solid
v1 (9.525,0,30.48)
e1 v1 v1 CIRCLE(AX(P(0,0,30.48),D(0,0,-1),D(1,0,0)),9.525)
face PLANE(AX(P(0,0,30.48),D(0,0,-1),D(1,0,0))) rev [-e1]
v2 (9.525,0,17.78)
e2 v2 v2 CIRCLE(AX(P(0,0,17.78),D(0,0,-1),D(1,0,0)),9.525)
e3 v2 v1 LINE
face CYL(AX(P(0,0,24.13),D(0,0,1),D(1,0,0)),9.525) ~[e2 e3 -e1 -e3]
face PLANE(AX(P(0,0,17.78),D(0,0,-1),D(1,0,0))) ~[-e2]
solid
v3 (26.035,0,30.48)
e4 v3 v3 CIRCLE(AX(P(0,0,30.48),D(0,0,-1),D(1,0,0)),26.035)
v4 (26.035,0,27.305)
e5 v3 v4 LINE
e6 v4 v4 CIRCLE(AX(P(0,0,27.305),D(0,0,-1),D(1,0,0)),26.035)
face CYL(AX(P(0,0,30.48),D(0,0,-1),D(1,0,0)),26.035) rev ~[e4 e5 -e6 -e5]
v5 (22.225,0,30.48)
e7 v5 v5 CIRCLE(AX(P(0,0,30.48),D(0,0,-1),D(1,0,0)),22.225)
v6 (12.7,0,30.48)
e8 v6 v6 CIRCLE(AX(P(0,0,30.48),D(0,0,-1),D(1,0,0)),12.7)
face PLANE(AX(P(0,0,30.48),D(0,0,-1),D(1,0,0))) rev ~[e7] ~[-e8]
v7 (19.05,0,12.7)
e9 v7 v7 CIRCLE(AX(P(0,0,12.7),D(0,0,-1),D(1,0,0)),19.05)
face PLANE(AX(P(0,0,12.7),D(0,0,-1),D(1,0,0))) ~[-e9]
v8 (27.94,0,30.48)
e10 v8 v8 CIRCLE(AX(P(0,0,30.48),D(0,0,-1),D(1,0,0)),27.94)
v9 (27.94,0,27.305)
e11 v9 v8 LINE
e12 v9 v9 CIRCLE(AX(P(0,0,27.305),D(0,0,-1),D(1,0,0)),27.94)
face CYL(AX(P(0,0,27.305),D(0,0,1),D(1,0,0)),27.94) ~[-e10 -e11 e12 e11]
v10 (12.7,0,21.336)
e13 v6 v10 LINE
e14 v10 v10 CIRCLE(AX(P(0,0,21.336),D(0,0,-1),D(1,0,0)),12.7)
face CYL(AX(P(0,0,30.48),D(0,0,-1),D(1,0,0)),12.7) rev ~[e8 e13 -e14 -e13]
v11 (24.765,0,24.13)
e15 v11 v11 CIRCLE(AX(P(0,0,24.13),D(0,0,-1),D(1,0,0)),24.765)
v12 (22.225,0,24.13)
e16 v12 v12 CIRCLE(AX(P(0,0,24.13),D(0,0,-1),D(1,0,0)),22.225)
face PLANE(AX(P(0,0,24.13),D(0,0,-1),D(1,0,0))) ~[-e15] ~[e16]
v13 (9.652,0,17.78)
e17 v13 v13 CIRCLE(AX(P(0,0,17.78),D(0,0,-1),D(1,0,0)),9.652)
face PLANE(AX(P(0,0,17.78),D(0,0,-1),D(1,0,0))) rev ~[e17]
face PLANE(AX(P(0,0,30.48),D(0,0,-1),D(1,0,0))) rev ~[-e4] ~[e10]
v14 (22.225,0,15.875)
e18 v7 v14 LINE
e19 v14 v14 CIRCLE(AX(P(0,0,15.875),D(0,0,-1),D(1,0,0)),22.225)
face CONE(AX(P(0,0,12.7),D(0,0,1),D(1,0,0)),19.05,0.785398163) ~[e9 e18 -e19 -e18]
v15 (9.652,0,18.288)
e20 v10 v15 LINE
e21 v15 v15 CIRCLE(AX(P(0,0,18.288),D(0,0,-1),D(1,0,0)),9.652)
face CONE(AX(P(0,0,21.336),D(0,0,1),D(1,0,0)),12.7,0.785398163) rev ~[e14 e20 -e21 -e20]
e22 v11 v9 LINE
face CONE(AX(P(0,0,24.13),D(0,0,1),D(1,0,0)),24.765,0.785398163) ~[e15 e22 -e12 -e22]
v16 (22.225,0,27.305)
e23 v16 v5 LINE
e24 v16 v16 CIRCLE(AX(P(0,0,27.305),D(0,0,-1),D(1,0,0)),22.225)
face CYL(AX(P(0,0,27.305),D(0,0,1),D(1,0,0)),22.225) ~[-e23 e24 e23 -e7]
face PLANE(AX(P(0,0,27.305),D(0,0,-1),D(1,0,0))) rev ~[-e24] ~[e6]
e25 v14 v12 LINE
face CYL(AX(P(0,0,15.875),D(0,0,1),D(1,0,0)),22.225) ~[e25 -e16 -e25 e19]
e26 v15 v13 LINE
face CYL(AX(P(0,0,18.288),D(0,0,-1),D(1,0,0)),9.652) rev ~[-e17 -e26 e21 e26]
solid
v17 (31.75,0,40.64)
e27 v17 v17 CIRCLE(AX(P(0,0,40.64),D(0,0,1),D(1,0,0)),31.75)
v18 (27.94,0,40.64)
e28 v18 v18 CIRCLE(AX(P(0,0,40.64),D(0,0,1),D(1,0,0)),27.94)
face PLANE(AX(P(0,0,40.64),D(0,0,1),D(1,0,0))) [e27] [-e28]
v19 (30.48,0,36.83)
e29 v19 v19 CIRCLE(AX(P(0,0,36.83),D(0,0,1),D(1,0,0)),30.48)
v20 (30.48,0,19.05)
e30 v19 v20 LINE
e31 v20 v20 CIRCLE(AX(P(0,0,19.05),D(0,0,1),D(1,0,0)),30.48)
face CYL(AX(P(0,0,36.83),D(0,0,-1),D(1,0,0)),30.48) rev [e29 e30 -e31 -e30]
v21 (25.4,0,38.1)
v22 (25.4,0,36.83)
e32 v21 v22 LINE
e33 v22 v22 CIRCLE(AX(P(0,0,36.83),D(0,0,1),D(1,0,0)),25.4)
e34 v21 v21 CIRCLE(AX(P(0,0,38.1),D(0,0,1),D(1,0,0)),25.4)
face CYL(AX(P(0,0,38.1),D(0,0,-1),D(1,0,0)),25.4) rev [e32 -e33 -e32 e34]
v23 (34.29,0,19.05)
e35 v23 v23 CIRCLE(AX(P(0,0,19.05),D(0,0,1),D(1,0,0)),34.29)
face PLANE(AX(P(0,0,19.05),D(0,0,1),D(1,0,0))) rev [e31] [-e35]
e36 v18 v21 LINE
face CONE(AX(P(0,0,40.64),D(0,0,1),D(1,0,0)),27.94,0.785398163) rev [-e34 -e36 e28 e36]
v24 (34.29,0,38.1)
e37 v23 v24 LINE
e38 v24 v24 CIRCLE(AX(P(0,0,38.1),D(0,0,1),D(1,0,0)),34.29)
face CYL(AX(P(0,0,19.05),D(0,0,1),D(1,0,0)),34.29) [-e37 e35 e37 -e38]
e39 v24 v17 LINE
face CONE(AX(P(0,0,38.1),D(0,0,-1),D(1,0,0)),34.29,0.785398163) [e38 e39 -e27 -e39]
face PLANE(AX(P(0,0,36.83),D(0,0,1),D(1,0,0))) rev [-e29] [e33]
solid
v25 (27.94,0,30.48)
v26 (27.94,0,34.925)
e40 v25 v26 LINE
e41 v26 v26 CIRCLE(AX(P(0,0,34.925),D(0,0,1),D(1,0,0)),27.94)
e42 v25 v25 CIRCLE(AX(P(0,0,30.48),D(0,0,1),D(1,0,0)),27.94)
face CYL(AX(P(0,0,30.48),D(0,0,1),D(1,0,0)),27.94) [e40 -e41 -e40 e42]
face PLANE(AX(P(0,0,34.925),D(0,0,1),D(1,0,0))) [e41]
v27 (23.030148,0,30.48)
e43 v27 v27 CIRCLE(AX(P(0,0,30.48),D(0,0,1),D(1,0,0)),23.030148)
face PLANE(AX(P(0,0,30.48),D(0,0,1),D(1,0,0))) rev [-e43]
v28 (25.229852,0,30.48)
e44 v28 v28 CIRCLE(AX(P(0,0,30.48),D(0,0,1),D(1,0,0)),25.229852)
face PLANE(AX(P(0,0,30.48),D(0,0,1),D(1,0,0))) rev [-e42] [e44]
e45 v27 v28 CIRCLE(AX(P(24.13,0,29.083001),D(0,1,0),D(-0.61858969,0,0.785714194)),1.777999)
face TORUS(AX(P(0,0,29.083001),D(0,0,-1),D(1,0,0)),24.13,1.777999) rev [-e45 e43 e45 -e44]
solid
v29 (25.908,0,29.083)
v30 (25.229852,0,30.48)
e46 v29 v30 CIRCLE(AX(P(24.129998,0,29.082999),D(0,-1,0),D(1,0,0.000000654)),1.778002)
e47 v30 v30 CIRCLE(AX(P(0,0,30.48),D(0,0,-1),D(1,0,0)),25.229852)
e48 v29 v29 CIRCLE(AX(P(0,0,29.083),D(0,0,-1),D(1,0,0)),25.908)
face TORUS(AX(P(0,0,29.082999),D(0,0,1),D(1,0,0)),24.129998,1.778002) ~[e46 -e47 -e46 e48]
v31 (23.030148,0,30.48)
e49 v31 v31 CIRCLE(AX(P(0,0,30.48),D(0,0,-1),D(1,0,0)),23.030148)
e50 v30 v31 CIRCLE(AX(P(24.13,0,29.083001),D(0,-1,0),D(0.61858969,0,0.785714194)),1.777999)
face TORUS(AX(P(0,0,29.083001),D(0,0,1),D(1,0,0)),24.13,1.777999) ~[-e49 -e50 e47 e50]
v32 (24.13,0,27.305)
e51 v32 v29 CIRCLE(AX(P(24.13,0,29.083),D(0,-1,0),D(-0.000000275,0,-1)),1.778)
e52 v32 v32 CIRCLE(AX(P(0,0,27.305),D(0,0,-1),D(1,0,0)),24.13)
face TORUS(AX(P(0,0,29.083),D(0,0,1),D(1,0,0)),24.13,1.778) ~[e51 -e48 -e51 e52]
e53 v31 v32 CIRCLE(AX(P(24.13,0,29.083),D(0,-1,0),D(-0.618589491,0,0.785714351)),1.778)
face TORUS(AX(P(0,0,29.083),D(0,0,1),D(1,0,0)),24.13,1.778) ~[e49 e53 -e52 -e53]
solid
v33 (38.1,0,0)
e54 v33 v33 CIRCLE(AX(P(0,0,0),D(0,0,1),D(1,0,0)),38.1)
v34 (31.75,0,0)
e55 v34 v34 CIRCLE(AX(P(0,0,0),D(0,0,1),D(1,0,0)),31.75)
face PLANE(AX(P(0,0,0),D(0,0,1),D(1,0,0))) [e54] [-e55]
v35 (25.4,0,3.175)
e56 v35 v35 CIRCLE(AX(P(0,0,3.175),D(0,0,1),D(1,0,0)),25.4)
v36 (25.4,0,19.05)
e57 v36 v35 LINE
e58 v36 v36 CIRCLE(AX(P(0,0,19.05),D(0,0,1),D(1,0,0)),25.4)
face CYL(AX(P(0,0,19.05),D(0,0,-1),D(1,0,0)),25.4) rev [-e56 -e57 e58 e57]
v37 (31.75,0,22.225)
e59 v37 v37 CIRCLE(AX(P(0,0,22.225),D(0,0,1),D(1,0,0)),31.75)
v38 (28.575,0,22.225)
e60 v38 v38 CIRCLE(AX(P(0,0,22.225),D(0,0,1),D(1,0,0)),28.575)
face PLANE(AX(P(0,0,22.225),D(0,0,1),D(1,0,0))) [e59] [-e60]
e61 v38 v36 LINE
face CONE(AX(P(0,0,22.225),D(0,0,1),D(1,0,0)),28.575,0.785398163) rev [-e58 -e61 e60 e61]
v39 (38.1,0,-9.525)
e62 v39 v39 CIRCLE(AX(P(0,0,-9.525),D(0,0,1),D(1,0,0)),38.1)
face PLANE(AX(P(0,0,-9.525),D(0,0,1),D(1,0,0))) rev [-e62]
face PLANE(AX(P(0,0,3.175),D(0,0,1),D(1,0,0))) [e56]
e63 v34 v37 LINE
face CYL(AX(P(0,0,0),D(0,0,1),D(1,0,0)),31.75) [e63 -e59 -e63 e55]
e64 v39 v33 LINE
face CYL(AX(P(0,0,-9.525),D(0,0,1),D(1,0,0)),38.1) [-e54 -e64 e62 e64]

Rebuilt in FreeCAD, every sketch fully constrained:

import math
import FreeCAD as App
import Part
import Sketcher
from FreeCAD import Vector
Q = App.Units.Quantity


def add_polygon(sketch, points):
    """Adds a closed chain of lines whose ends are joined by coincident constraints."""
    first, n = sketch.GeometryCount, len(points)
    for a, b in zip(points, points[1:] + points[:1]):
        sketch.addGeometry(Part.LineSegment(App.Vector(*a, 0), App.Vector(*b, 0)), False)
    for i in range(n):
        sketch.addConstraint(Sketcher.Constraint("Coincident", first + i, 2, first + (i + 1) % n, 1))

doc = App.newDocument("Part")
body = doc.addObject("PartDesign::Body", "Body")

sketch1 = doc.addObject("Sketcher::SketchObject", "Sketch")
body.addObject(sketch1)
sketch1.AttachmentSupport = (doc.XZ_Plane, [""])
sketch1.MapMode = "FlatFace"
add_polygon(sketch1, [(0, 30), (0, 18), (10, 18), (10, 30)])
sketch1.addConstraint(Sketcher.Constraint("Vertical", 0))
sketch1.addConstraint(Sketcher.Constraint("Horizontal", 1))
sketch1.addConstraint(Sketcher.Constraint("Vertical", 2))
sketch1.addConstraint(Sketcher.Constraint("Horizontal", 3))
sketch1.addConstraint(Sketcher.Constraint("PointOnObject", 0, 2, -2))
sketch1.addConstraint(Sketcher.Constraint("DistanceY", 0, 2, 0, 1, Q("0.5 in")))
sketch1.addConstraint(Sketcher.Constraint("DistanceY", -1, 1, 0, 2, Q("0.7 in")))
sketch1.addConstraint(Sketcher.Constraint("DistanceX", 1, 1, 1, 2, Q("0.375 in")))
revolution = doc.addObject("PartDesign::Revolution", "Revolution")
body.addObject(revolution)
revolution.Profile = sketch1
revolution.ReferenceAxis = (sketch1, ["V_Axis"])
revolution.Angle = 360
body2 = doc.addObject("PartDesign::Body", "Body001")

sketch2 = doc.addObject("Sketcher::SketchObject", "Sketch001")
body2.addObject(sketch2)
sketch2.AttachmentSupport = (doc.getObject("XZ_Plane001"), [""])
sketch2.MapMode = "FlatFace"
add_polygon(sketch2, [(0, 17.8), (0, 12.7), (19.1, 12.7), (22.2, 15.9), (22.2, 24.1), (24.8, 24.1), (27.9, 27.3), (27.9, 30.5), (26, 30.5), (26, 27.3), (22.2, 27.3), (22.2, 30.5), (12.7, 30.5), (12.7, 21.3), (9.7, 18.3), (9.7, 17.8)])
sketch2.addConstraint(Sketcher.Constraint("Vertical", 0))
sketch2.addConstraint(Sketcher.Constraint("Horizontal", 1))
sketch2.addConstraint(Sketcher.Constraint("Vertical", 3))
sketch2.addConstraint(Sketcher.Constraint("Horizontal", 4))
sketch2.addConstraint(Sketcher.Constraint("Vertical", 6))
sketch2.addConstraint(Sketcher.Constraint("Horizontal", 7))
sketch2.addConstraint(Sketcher.Constraint("Vertical", 8))
sketch2.addConstraint(Sketcher.Constraint("Horizontal", 9))
sketch2.addConstraint(Sketcher.Constraint("Vertical", 10))
sketch2.addConstraint(Sketcher.Constraint("Horizontal", 11))
sketch2.addConstraint(Sketcher.Constraint("Vertical", 12))
sketch2.addConstraint(Sketcher.Constraint("Vertical", 14))
sketch2.addConstraint(Sketcher.Constraint("Horizontal", 15))
sketch2.addConstraint(Sketcher.Constraint("PointOnObject", 0, 2, -2))
sketch2.addConstraint(Sketcher.Constraint("Parallel", 2, 5))
sketch2.addConstraint(Sketcher.Constraint("Parallel", 5, 13))
sketch2.addConstraint(Sketcher.Constraint("Horizontal", 5, 2, 8, 2))
sketch2.addConstraint(Sketcher.Constraint("Horizontal", 7, 2, 10, 2))
sketch2.addConstraint(Sketcher.Constraint("Vertical", 3, 2, 9, 2))
sketch2.addConstraint(Sketcher.Constraint("Equal", 2, 5))
sketch2.addConstraint(Sketcher.Constraint("DistanceX", 4, 1, 4, 2, Q("0.1 in")))
sketch2.addConstraint(Sketcher.Constraint("DistanceY", 0, 2, 0, 1, Q("0.2 in")))
sketch2.addConstraint(Sketcher.Constraint("Angle", 2, Q("45 deg")))
sketch2.addConstraint(Sketcher.Constraint("DistanceX", 1, 1, 1, 2, Q("0.75 in")))
sketch2.addConstraint(Sketcher.Constraint("DistanceX", 9, 2, 9, 1, Q("0.15 in")))
sketch2.addConstraint(Sketcher.Constraint("DistanceX", 15, 2, 15, 1, Q("0.38 in")))
sketch2.addConstraint(Sketcher.Constraint("DistanceY", 12, 2, 12, 1, Q("0.36 in")))
sketch2.addConstraint(Sketcher.Constraint("DistanceY", 14, 2, 14, 1, Q("0.02 in")))
sketch2.addConstraint(Sketcher.Constraint("DistanceY", -1, 1, 0, 2, Q("0.5 in")))
sketch2.addConstraint(Sketcher.Constraint("DistanceX", -1, 1, 5, 2, Q("1.1 in")))
sketch2.addConstraint(Sketcher.Constraint("DistanceY", -1, 1, 6, 2, Q("1.2 in")))
sketch2.addConstraint(Sketcher.Constraint("DistanceY", 3, 1, 3, 2, Q("0.325 in")))
revolution2 = doc.addObject("PartDesign::Revolution", "Revolution001")
body2.addObject(revolution2)
revolution2.Profile = sketch2
revolution2.ReferenceAxis = (sketch2, ["V_Axis"])
revolution2.Angle = 360
body3 = doc.addObject("PartDesign::Body", "Body002")

sketch3 = doc.addObject("Sketcher::SketchObject", "Sketch002")
body3.addObject(sketch3)
sketch3.AttachmentSupport = (doc.getObject("XZ_Plane002"), [""])
sketch3.MapMode = "FlatFace"
sketch3.addGeometry(Part.LineSegment(Vector(0, 34.9, 0), Vector(0, 30.5, 0)), False)
sketch3.addGeometry(Part.LineSegment(Vector(0, 30.5, 0), Vector(23, 30.5, 0)), False)
sketch3.addGeometry(Part.ArcOfCircle(Part.Circle(Vector(24.1, 29.1, 0), Vector(0, 0, 1), 1.8), math.radians(52), math.radians(128)), False)
sketch3.addGeometry(Part.LineSegment(Vector(25.2, 30.5, 0), Vector(27.9, 30.5, 0)), False)
sketch3.addGeometry(Part.LineSegment(Vector(27.9, 30.5, 0), Vector(27.9, 34.9, 0)), False)
sketch3.addGeometry(Part.LineSegment(Vector(27.9, 34.9, 0), Vector(0, 34.9, 0)), False)
sketch3.addConstraint(Sketcher.Constraint("Coincident", 0, 2, 1, 1))
sketch3.addConstraint(Sketcher.Constraint("Coincident", 1, 2, 2, 2))
sketch3.addConstraint(Sketcher.Constraint("Coincident", 2, 1, 3, 1))
sketch3.addConstraint(Sketcher.Constraint("Coincident", 3, 2, 4, 1))
sketch3.addConstraint(Sketcher.Constraint("Coincident", 4, 2, 5, 1))
sketch3.addConstraint(Sketcher.Constraint("Coincident", 5, 2, 0, 1))
sketch3.addConstraint(Sketcher.Constraint("Vertical", 0))
sketch3.addConstraint(Sketcher.Constraint("Horizontal", 1))
sketch3.addConstraint(Sketcher.Constraint("Horizontal", 3))
sketch3.addConstraint(Sketcher.Constraint("Vertical", 4))
sketch3.addConstraint(Sketcher.Constraint("Horizontal", 5))
sketch3.addConstraint(Sketcher.Constraint("PointOnObject", 0, 2, -2))
sketch3.addConstraint(Sketcher.Constraint("Horizontal", 1, 2, 2, 1))
sketch3.addConstraint(Sketcher.Constraint("Radius", 2, Q("0.07 in")))
sketch3.addConstraint(Sketcher.Constraint("DistanceX", 5, 2, 5, 1, Q("1.1 in")))
sketch3.addConstraint(Sketcher.Constraint("DistanceY", -1, 1, 0, 2, Q("1.2 in")))
sketch3.addConstraint(Sketcher.Constraint("DistanceY", 0, 2, 0, 1, Q("0.175 in")))
sketch3.addConstraint(Sketcher.Constraint("DistanceX", -1, 1, 2, 3, Q("0.95 in")))
sketch3.addConstraint(Sketcher.Constraint("DistanceY", 2, 3, 4, 2, Q("0.23 in")))
revolution3 = doc.addObject("PartDesign::Revolution", "Revolution002")
body3.addObject(revolution3)
revolution3.Profile = sketch3
revolution3.ReferenceAxis = (sketch3, ["V_Axis"])
revolution3.Angle = 360
body4 = doc.addObject("PartDesign::Body", "Body003")

sketch4 = doc.addObject("Sketcher::SketchObject", "Sketch003")
body4.addObject(sketch4)
sketch4.AttachmentSupport = (doc.getObject("XZ_Plane003"), [""])
sketch4.MapMode = "FlatFace"
add_polygon(sketch4, [(28.6, 22.2), (25.4, 19.1), (25.4, 3.2), (0, 3.2), (0, -9.5), (38.1, -9.5), (38.1, 0), (31.8, 0), (31.8, 22.2)])
sketch4.addConstraint(Sketcher.Constraint("Vertical", 1))
sketch4.addConstraint(Sketcher.Constraint("Horizontal", 2))
sketch4.addConstraint(Sketcher.Constraint("Vertical", 3))
sketch4.addConstraint(Sketcher.Constraint("Horizontal", 4))
sketch4.addConstraint(Sketcher.Constraint("Vertical", 5))
sketch4.addConstraint(Sketcher.Constraint("Horizontal", 6))
sketch4.addConstraint(Sketcher.Constraint("Vertical", 7))
sketch4.addConstraint(Sketcher.Constraint("Horizontal", 8))
sketch4.addConstraint(Sketcher.Constraint("PointOnObject", 2, 2, -2))
sketch4.addConstraint(Sketcher.Constraint("PointOnObject", 5, 2, -1))
sketch4.addConstraint(Sketcher.Constraint("DistanceX", 2, 2, 2, 1, Q("1 in")))
sketch4.addConstraint(Sketcher.Constraint("DistanceX", 4, 1, 4, 2, Q("1.5 in")))
sketch4.addConstraint(Sketcher.Constraint("DistanceY", 3, 2, 3, 1, Q("0.5 in")))
sketch4.addConstraint(Sketcher.Constraint("Angle", 0, Q("-135 deg")))
sketch4.addConstraint(Sketcher.Constraint("DistanceX", 6, 2, 6, 1, Q("0.25 in")))
sketch4.addConstraint(Sketcher.Constraint("DistanceX", 8, 2, 8, 1, Q("0.125 in")))
sketch4.addConstraint(Sketcher.Constraint("DistanceY", 1, 2, 1, 1, Q("0.625 in")))
sketch4.addConstraint(Sketcher.Constraint("DistanceY", 5, 1, 5, 2, Q("0.375 in")))
revolution4 = doc.addObject("PartDesign::Revolution", "Revolution003")
body4.addObject(revolution4)
revolution4.Profile = sketch4
revolution4.ReferenceAxis = (sketch4, ["V_Axis"])
revolution4.Angle = 360
body5 = doc.addObject("PartDesign::Body", "Body004")

sketch5 = doc.addObject("Sketcher::SketchObject", "Sketch004")
body5.addObject(sketch5)
sketch5.AttachmentSupport = (doc.getObject("XZ_Plane004"), [""])
sketch5.MapMode = "FlatFace"
add_polygon(sketch5, [(30.5, 36.8), (30.5, 19.1), (34.3, 19.1), (34.3, 38.1), (31.8, 40.6), (27.9, 40.6), (25.4, 38.1), (25.4, 36.8)])
sketch5.addConstraint(Sketcher.Constraint("Vertical", 0))
sketch5.addConstraint(Sketcher.Constraint("Horizontal", 1))
sketch5.addConstraint(Sketcher.Constraint("Vertical", 2))
sketch5.addConstraint(Sketcher.Constraint("Horizontal", 4))
sketch5.addConstraint(Sketcher.Constraint("Vertical", 6))
sketch5.addConstraint(Sketcher.Constraint("Horizontal", 7))
sketch5.addConstraint(Sketcher.Constraint("Perpendicular", 3, 5))
sketch5.addConstraint(Sketcher.Constraint("Horizontal", 2, 2, 5, 2))
sketch5.addConstraint(Sketcher.Constraint("Equal", 1, 4))
sketch5.addConstraint(Sketcher.Constraint("Equal", 3, 5))
sketch5.addConstraint(Sketcher.Constraint("DistanceX", 7, 1, 7, 2, Q("0.2 in")))
sketch5.addConstraint(Sketcher.Constraint("DistanceY", 0, 2, 0, 1, Q("0.7 in")))
sketch5.addConstraint(Sketcher.Constraint("DistanceX", -1, 1, 5, 2, Q("1 in")))
sketch5.addConstraint(Sketcher.Constraint("DistanceX", 1, 1, 1, 2, Q("0.15 in")))
sketch5.addConstraint(Sketcher.Constraint("DistanceY", 2, 1, 2, 2, Q("0.75 in")))
sketch5.addConstraint(Sketcher.Constraint("DistanceY", -1, 1, 2, 2, Q("1.5 in")))
revolution5 = doc.addObject("PartDesign::Revolution", "Revolution004")
body5.addObject(revolution5)
revolution5.Profile = sketch5
revolution5.ReferenceAxis = (sketch5, ["V_Axis"])
revolution5.Angle = 360
body6 = doc.addObject("PartDesign::Body", "Body005")

sketch6 = doc.addObject("Sketcher::SketchObject", "Sketch005")
body6.addObject(sketch6)
sketch6.AttachmentSupport = (doc.getObject("XZ_Plane005"), [""])
sketch6.MapMode = "FlatFace"
sketch6.addGeometry(Part.ArcOfCircle(Part.Circle(Vector(24.1, 29.1, 0), Vector(0, 0, 1), 1.8), math.radians(52), math.radians(128)), False)
sketch6.addGeometry(Part.ArcOfCircle(Part.Circle(Vector(24.1, 29.1, 0), Vector(0, 0, 1), 1.8), math.radians(128), math.radians(270)), False)
sketch6.addGeometry(Part.ArcOfCircle(Part.Circle(Vector(24.1, 29.1, 0), Vector(0, 0, 1), 1.8), math.radians(-90), math.radians(0)), False)
sketch6.addGeometry(Part.ArcOfCircle(Part.Circle(Vector(24.1, 29.1, 0), Vector(0, 0, 1), 1.8), math.radians(0), math.radians(52)), False)
sketch6.addConstraint(Sketcher.Constraint("Tangent", 0, 2, 1, 1))
sketch6.addConstraint(Sketcher.Constraint("Tangent", 1, 2, 2, 1))
sketch6.addConstraint(Sketcher.Constraint("Tangent", 2, 2, 3, 1))
sketch6.addConstraint(Sketcher.Constraint("Tangent", 3, 2, 0, 1))
sketch6.addConstraint(Sketcher.Constraint("Equal", 0, 1))
sketch6.addConstraint(Sketcher.Constraint("Horizontal", 3, 3, 2, 2))
sketch6.addConstraint(Sketcher.Constraint("Horizontal", 0, 2, 3, 2))
sketch6.addConstraint(Sketcher.Constraint("Vertical", 3, 3, 1, 2))
sketch6.addConstraint(Sketcher.Constraint("Radius", 0, Q("0.07 in")))
sketch6.addConstraint(Sketcher.Constraint("DistanceY", -1, 1, 0, 2, Q("1.2 in")))
sketch6.addConstraint(Sketcher.Constraint("DistanceX", -1, 1, 0, 3, Q("0.95 in")))
sketch6.addConstraint(Sketcher.Constraint("DistanceY", -1, 1, 0, 3, Q("1.145 in")))
revolution6 = doc.addObject("PartDesign::Revolution", "Revolution005")
body6.addObject(revolution6)
revolution6.Profile = sketch6
revolution6.ReferenceAxis = (sketch6, ["V_Axis"])
revolution6.Angle = 360

doc.recompute()
